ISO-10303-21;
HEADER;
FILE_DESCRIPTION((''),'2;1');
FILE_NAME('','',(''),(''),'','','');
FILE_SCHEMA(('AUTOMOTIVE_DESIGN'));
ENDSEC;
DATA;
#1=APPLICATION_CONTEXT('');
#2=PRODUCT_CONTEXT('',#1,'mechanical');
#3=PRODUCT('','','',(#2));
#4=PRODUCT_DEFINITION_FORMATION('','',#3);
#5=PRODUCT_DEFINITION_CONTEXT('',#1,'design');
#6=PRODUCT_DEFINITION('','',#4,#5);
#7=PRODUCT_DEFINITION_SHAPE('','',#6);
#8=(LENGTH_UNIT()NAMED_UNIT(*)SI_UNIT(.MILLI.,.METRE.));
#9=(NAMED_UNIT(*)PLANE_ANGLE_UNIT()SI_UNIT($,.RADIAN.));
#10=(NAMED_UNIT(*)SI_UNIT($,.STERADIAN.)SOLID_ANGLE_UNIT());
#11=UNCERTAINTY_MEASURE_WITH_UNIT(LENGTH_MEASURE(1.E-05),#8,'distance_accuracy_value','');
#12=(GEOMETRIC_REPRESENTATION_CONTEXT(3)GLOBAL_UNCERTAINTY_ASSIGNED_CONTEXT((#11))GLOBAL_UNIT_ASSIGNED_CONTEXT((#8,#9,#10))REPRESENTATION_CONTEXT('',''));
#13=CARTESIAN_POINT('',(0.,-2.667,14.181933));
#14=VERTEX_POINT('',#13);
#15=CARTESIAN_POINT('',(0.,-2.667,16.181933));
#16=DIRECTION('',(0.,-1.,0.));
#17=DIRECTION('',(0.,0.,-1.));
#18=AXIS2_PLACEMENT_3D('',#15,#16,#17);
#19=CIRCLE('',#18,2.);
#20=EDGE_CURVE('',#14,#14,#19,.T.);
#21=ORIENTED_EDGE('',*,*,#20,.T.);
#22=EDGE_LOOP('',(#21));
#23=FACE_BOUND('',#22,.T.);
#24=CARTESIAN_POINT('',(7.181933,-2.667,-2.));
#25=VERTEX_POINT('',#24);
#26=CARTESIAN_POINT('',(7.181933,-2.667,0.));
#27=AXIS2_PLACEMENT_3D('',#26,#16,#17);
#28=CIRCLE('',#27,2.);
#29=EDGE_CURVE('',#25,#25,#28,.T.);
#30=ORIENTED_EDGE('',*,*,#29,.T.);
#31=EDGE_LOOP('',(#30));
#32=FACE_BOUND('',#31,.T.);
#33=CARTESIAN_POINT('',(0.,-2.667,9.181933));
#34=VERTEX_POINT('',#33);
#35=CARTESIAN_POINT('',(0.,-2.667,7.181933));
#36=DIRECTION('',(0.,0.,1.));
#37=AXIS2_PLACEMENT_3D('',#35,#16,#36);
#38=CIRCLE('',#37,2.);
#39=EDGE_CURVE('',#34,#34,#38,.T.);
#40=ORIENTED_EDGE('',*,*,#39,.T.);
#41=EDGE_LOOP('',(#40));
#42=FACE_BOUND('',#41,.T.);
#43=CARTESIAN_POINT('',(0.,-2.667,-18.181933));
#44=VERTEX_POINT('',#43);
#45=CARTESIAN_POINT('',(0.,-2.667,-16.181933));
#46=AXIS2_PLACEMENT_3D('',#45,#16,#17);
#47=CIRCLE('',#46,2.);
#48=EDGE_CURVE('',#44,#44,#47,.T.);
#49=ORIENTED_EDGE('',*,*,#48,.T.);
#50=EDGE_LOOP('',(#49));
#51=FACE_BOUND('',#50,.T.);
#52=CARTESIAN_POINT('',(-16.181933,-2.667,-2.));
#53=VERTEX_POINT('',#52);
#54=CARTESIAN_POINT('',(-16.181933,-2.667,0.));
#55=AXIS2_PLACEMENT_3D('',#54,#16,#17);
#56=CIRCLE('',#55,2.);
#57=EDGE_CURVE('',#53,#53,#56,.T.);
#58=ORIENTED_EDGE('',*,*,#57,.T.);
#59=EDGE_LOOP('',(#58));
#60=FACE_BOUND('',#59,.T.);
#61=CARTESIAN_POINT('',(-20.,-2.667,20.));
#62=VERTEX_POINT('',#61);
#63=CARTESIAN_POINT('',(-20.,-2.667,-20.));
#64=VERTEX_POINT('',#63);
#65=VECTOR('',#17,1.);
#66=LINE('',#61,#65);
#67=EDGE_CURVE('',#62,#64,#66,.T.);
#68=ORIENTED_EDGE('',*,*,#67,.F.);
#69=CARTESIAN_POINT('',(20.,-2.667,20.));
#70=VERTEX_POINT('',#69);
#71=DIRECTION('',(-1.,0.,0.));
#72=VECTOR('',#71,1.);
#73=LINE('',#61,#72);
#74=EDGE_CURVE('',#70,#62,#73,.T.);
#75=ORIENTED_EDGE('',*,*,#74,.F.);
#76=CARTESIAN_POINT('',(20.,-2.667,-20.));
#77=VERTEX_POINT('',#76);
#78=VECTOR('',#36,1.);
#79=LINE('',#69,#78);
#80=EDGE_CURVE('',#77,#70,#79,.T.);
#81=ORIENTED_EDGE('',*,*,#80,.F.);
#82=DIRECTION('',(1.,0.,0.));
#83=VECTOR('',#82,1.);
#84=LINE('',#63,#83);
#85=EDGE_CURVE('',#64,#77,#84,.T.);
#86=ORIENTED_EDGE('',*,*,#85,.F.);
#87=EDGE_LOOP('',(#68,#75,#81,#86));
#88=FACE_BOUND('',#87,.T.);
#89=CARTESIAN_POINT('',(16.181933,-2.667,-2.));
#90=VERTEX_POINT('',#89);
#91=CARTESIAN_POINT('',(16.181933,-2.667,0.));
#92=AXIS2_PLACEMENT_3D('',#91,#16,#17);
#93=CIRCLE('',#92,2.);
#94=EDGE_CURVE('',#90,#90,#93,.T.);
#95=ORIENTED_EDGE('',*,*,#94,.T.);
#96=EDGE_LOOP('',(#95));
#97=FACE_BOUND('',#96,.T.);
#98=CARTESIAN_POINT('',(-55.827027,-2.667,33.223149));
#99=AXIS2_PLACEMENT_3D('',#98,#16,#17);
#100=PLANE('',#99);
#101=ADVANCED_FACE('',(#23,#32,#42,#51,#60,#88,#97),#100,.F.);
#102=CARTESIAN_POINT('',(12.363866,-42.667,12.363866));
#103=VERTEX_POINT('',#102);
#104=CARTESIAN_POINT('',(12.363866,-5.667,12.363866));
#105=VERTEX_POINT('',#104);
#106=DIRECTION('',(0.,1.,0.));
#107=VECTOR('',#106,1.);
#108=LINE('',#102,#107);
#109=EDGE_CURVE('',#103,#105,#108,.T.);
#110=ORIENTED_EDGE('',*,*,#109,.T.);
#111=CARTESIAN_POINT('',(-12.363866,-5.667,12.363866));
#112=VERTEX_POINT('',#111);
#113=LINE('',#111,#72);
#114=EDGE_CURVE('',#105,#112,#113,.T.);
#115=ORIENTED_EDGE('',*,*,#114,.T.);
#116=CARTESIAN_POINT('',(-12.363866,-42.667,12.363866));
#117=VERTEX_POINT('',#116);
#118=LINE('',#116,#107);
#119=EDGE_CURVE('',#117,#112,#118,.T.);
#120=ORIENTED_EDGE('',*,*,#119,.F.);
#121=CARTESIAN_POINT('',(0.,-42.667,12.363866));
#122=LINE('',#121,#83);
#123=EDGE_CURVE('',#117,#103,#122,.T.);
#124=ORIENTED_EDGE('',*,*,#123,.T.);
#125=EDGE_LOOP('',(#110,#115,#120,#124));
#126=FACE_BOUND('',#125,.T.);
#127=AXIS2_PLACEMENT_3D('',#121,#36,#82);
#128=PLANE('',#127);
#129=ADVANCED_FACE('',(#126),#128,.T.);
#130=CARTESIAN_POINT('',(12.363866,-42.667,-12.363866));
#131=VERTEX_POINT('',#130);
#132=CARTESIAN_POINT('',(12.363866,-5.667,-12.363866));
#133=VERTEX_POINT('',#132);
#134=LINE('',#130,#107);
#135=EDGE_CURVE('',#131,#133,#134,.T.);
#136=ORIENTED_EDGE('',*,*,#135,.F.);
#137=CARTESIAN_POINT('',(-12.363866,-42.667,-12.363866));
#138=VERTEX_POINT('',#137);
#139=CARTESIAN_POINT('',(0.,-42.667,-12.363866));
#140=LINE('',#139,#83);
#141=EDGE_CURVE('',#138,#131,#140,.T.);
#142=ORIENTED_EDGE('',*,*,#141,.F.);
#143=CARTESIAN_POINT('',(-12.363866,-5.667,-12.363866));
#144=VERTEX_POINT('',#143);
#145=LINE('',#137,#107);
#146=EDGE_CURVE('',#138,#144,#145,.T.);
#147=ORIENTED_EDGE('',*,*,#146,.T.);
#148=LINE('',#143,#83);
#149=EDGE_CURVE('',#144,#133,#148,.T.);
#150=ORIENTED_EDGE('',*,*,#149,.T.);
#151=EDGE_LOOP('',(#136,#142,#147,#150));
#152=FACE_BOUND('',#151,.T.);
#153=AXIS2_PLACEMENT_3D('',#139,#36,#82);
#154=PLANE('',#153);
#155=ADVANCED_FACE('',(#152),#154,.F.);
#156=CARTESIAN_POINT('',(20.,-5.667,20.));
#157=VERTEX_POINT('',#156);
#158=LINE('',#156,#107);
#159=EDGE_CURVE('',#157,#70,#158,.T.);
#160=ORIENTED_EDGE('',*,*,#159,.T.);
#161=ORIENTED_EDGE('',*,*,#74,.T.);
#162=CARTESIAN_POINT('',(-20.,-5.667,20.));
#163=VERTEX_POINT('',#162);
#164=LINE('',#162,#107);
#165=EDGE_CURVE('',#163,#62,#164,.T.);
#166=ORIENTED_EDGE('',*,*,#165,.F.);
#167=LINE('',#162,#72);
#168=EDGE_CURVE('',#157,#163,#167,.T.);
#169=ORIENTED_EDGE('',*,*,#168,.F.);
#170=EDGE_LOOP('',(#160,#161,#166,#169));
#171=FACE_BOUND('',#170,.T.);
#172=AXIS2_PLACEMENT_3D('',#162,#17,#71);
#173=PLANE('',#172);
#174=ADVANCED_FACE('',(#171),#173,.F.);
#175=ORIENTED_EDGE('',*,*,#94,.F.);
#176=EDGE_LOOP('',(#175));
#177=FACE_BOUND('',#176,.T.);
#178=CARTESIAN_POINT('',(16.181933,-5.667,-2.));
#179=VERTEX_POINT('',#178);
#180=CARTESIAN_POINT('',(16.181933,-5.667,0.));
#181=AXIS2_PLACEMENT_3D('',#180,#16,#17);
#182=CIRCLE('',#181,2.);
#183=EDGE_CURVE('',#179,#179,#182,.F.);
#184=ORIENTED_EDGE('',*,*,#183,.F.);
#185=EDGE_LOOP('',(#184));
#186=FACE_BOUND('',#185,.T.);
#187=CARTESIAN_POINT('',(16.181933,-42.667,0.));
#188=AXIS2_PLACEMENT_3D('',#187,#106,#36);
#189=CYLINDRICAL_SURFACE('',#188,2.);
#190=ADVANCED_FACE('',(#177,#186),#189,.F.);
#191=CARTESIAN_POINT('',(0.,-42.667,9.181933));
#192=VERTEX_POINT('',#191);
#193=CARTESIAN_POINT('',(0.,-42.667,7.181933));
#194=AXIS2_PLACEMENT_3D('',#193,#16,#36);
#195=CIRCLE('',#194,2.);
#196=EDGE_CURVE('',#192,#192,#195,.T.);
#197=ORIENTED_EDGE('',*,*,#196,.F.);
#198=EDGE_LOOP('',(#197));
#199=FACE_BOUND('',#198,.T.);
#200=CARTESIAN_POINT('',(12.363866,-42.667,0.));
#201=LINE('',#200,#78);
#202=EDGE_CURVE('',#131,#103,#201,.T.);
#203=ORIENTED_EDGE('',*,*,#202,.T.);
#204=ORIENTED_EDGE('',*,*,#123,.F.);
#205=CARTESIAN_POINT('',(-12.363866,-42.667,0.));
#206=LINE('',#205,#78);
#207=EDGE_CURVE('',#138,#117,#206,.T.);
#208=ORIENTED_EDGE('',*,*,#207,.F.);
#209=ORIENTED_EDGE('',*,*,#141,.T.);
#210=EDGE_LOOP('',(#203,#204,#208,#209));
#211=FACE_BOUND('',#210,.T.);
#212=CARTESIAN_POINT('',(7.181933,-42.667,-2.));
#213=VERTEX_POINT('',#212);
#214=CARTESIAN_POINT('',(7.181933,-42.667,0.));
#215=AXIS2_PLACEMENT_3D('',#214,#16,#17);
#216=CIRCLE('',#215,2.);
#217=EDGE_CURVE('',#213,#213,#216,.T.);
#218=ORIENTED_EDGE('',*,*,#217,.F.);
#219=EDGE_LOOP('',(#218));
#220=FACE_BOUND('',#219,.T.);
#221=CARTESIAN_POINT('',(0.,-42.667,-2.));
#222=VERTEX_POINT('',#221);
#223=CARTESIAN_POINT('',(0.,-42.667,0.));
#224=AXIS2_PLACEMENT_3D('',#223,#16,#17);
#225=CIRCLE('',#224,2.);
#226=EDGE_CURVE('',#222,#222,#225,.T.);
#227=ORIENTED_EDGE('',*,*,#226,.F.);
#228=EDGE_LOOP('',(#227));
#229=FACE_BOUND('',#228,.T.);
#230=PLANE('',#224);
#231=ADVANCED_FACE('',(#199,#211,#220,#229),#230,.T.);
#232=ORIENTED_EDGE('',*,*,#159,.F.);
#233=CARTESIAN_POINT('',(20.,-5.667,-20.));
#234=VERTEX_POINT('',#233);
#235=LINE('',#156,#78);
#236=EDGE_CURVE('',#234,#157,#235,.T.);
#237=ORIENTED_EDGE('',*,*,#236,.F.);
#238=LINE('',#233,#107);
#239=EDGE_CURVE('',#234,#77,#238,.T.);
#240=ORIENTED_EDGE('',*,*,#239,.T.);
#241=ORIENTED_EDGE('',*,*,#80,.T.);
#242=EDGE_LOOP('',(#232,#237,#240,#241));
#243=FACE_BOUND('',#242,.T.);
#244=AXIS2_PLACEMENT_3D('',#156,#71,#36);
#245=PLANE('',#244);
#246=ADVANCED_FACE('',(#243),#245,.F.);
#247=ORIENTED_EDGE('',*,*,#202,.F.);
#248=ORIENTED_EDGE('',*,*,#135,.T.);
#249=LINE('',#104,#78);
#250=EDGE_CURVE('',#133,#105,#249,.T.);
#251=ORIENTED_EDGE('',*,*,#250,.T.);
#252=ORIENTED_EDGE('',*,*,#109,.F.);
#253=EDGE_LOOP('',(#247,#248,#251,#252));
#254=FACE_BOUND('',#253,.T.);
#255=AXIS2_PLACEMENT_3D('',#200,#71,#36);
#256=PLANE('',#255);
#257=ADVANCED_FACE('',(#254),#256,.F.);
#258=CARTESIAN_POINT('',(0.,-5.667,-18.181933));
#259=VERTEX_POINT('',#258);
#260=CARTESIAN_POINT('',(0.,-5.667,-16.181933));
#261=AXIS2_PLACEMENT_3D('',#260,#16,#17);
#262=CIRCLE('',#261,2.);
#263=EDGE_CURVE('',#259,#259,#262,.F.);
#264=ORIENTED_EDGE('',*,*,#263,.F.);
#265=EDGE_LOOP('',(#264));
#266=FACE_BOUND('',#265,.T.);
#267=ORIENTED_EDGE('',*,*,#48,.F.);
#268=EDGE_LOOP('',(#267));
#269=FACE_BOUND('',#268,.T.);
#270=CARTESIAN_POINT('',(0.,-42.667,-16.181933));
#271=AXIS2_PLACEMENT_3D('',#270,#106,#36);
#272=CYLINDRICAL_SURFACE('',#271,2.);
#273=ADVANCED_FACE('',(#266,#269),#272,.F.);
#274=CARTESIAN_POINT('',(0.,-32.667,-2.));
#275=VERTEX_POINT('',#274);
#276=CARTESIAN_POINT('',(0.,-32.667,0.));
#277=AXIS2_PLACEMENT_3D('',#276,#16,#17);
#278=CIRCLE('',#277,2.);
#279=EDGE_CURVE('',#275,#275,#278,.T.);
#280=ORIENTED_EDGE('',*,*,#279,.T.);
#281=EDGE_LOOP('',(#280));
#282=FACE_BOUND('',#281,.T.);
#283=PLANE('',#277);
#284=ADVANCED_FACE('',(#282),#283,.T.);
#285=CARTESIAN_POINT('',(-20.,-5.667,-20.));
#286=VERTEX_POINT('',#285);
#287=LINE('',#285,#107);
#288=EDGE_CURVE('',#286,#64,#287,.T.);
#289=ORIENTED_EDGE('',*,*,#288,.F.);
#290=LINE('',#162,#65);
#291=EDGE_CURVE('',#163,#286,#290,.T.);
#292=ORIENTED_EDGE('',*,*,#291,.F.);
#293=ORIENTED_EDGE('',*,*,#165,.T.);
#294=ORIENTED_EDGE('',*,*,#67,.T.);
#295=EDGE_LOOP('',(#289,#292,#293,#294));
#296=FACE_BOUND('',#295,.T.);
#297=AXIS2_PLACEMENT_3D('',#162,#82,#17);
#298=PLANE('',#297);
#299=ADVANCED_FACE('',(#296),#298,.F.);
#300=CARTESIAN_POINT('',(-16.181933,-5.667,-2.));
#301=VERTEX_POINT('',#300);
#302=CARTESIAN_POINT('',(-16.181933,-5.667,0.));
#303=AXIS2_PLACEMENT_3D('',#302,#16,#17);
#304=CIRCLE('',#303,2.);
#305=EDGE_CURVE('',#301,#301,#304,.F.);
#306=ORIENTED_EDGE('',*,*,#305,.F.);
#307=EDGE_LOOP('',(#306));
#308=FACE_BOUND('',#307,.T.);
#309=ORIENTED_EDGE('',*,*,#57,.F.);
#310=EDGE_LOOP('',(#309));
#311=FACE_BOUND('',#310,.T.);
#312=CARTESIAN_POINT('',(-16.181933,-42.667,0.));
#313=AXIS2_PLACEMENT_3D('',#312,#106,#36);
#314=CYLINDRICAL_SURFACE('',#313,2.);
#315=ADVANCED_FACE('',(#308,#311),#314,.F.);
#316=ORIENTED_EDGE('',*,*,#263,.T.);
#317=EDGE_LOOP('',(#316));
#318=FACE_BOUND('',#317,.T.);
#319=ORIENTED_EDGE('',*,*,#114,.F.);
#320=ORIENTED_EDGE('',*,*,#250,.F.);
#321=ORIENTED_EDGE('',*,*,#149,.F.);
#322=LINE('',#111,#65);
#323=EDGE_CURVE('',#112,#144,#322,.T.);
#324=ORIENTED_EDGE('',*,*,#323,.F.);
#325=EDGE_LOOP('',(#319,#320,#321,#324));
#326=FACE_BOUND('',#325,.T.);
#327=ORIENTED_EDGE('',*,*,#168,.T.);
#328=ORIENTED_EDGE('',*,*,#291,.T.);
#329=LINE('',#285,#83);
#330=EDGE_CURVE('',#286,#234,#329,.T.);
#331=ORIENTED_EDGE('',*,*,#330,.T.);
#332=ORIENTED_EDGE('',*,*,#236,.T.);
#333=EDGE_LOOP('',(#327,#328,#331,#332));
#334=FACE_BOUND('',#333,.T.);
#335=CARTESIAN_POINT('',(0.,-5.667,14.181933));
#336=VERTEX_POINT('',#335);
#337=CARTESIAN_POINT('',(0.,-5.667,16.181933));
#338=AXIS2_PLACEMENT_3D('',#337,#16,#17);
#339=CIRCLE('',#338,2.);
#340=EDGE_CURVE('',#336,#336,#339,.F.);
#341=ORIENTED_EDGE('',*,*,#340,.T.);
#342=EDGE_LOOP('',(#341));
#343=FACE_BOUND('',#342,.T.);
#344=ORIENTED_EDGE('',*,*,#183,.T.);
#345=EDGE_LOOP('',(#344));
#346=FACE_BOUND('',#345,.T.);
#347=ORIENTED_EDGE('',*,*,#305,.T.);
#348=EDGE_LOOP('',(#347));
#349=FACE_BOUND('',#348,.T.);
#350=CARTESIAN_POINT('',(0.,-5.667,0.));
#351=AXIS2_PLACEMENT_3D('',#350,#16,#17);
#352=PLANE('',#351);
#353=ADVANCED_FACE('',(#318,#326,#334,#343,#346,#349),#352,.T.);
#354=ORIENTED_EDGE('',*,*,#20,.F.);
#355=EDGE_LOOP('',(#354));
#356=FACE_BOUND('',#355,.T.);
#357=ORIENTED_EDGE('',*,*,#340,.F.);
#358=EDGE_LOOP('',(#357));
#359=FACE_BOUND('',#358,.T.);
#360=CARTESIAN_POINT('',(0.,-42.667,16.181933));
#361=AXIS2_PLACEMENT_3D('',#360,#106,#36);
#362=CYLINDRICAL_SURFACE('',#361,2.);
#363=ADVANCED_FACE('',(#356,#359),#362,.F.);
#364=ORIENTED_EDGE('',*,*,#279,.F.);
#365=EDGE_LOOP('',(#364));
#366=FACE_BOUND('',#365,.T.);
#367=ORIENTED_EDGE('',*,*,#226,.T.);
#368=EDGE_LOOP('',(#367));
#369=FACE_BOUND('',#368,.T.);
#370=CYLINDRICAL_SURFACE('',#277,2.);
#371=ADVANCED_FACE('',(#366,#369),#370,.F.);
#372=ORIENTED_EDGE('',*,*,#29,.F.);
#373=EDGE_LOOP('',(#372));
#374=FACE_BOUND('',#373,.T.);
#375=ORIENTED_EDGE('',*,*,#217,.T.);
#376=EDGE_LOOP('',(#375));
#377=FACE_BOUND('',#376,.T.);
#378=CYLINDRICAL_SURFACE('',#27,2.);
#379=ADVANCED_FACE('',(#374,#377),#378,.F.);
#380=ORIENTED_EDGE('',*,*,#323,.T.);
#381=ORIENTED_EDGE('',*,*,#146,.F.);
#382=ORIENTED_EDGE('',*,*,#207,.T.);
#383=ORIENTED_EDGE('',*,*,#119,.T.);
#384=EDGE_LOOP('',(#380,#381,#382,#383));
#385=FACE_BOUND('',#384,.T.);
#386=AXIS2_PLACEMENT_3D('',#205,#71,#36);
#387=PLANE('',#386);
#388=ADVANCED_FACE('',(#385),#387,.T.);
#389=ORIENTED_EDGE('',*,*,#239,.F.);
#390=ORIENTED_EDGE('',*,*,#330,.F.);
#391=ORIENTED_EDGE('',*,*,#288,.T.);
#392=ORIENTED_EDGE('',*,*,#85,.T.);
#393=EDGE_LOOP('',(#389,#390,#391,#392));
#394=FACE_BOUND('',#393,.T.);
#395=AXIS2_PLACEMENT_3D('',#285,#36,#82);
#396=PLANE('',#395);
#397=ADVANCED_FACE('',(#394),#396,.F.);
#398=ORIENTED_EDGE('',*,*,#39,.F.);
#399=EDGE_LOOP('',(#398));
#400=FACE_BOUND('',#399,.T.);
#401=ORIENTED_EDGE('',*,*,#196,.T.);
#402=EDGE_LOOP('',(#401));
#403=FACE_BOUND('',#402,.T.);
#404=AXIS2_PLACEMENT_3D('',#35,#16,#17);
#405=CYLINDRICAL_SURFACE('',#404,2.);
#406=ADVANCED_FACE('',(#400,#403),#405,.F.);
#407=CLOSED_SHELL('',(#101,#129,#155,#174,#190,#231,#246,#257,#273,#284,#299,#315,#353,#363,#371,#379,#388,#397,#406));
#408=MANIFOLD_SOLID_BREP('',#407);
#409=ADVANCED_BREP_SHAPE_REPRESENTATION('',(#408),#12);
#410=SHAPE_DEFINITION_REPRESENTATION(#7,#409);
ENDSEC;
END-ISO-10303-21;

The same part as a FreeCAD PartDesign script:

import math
import FreeCAD as App
import Part
import Sketcher
from FreeCAD import Vector
Q = App.Units.Quantity


def edges_at(feature, points):
    """Names of the edges that pass closest to the given points."""
    edges = feature.Shape.Edges
    near = lambda p: min(range(len(edges)), key=lambda i: edges[i].distToShape(Part.Vertex(*p))[0])
    return sorted({f"Edge{near(p) + 1}" for p in points})

doc = App.newDocument("Part")
body = doc.addObject("PartDesign::Body", "Body")

# Sketch on XZ plane
sketch1 = body.newObject("Sketcher::SketchObject", "Sketch")
sketch1.AttachmentSupport = (doc.getObject("XZ_Plane"), [""])
sketch1.MapMode = "FlatFace"
sketch1.AttachmentOffset = App.Placement(Vector(0, 0, 0.105 * 25.4), App.Rotation())
sketch1.addGeometry([
    Part.LineSegment(Vector(-96.9645, 58.801, 0), Vector(-96.9645, -58.801, 0)),
    Part.LineSegment(Vector(-96.9645, -58.801, 0), Vector(96.9645, -58.801, 0)),
    Part.LineSegment(Vector(96.9645, -58.801, 0), Vector(96.9645, 58.801, 0)),
    Part.LineSegment(Vector(96.9645, 58.801, 0), Vector(-96.9645, 58.801, 0)),
], False)
sketch1.addConstraint([
    Sketcher.Constraint("Coincident", 0, 2, 1, 1),
    Sketcher.Constraint("Coincident", 1, 2, 2, 1),
    Sketcher.Constraint("Coincident", 2, 2, 3, 1),
    Sketcher.Constraint("Coincident", 3, 2, 0, 1),
    Sketcher.Constraint("Vertical", 0),
    Sketcher.Constraint("Horizontal", 1),
    Sketcher.Constraint("Vertical", 2),
    Sketcher.Constraint("Horizontal", 3),
    Sketcher.Constraint("Symmetric", 0, 2, 2, 2, -1, 1),
    Sketcher.Constraint("DistanceY", 0, 2, 0, 1, Q("4.63 in")),
    Sketcher.Constraint("DistanceX", 1, 1, 1, 2, Q("7.635 in")),
])
pad1 = body.newObject("PartDesign::Pad", "Pad")
pad1.Profile = sketch1
pad1.Length = Q("0.105 in")
pad1.Reversed = True

# Sketch on XZ plane
sketch2 = body.newObject("Sketcher::SketchObject", "Sketch001")
sketch2.AttachmentSupport = (doc.getObject("XZ_Plane"), [""])
sketch2.MapMode = "FlatFace"
sketch2.AttachmentOffset = App.Placement(Vector(0, 0, 0.105 * 25.4), App.Rotation())
sketch2.addGeometry([
    Part.LineSegment(Vector(-74.4728, 55.3085, 0), Vector(-93.472, 36.2712, 0)),  # 0
    Part.LineSegment(Vector(-93.472, 36.2712, 0), Vector(-93.472, -36.2712, 0)),  # 1
    Part.LineSegment(Vector(-93.472, -36.2712, 0), Vector(-74.4728, -55.3085, 0)),  # 2
    Part.LineSegment(Vector(-74.4728, -55.3085, 0), Vector(74.4728, -55.3085, 0)),  # 3
    Part.LineSegment(Vector(74.4728, -55.3085, 0), Vector(93.472, -36.2712, 0)),  # 4
    Part.LineSegment(Vector(93.472, -36.2712, 0), Vector(93.472, 36.2712, 0)),  # 5
    Part.LineSegment(Vector(93.472, 36.2712, 0), Vector(74.4728, 55.3085, 0)),  # 6
    Part.LineSegment(Vector(74.4728, 55.3085, 0), Vector(-74.4728, 55.3085, 0)),  # 7
], False)
sketch2.addConstraint([
    Sketcher.Constraint("Coincident", 0, 2, 1, 1),
    Sketcher.Constraint("Coincident", 1, 2, 2, 1),
    Sketcher.Constraint("Coincident", 2, 2, 3, 1),
    Sketcher.Constraint("Coincident", 3, 2, 4, 1),
    Sketcher.Constraint("Coincident", 4, 2, 5, 1),
    Sketcher.Constraint("Coincident", 5, 2, 6, 1),
    Sketcher.Constraint("Coincident", 6, 2, 7, 1),
    Sketcher.Constraint("Coincident", 7, 2, 0, 1),
    Sketcher.Constraint("Vertical", 1),
    Sketcher.Constraint("Horizontal", 3),
    Sketcher.Constraint("Vertical", 5),
    Sketcher.Constraint("Horizontal", 7),
    Sketcher.Constraint("Symmetric", 0, 2, 4, 2, -1, 1),
    Sketcher.Constraint("Symmetric", 2, 2, 6, 2, -1, 1),
    Sketcher.Constraint("Parallel", 0, 4),
    Sketcher.Constraint("Parallel", 2, 6),
    Sketcher.Constraint("Horizontal", 1, 2, 4, 2),
    Sketcher.Constraint("Vertical", 3, 2, 6, 2),
    Sketcher.Constraint("DistanceX", 3, 1, 3, 2, Q("5.864 in")),
    Sketcher.Constraint("DistanceY", 1, 2, 1, 1, Q("2.856 in")),
    Sketcher.Constraint("DistanceX", 0, 2, -1, 1, Q("3.68 in")),
    Sketcher.Constraint("DistanceY", 3, 2, 6, 2, Q("4.355 in")),
])
pocket1 = body.newObject("PartDesign::Pocket", "Pocket")
pocket1.Profile = sketch2
pocket1.Length = Q("0.01 in")

# Sketch on XZ plane
sketch3 = body.newObject("Sketcher::SketchObject", "Sketch002")
sketch3.AttachmentSupport = (doc.getObject("XZ_Plane"), [""])
sketch3.MapMode = "FlatFace"
sketch3.AttachmentOffset = App.Placement(Vector(0, 0, 0.095 * 25.4), App.Rotation())
sketch3.addGeometry([
    Part.LineSegment(Vector(92.6846, -35.94551, 0), Vector(92.6846, 35.94551, 0)),  # 0
    Part.LineSegment(Vector(92.6846, 35.94551, 0), Vector(74.146186, 54.5211, 0)),  # 1
    Part.LineSegment(Vector(74.146186, 54.5211, 0), Vector(-74.146186, 54.5211, 0)),  # 2
    Part.LineSegment(Vector(-74.146186, 54.5211, 0), Vector(-92.6846, 35.94551, 0)),  # 3
    Part.LineSegment(Vector(-92.6846, 35.94551, 0), Vector(-92.6846, -35.94551, 0)),  # 4
    Part.LineSegment(Vector(-92.6846, -35.94551, 0), Vector(-74.146186, -54.5211, 0)),  # 5
    Part.LineSegment(Vector(-74.146186, -54.5211, 0), Vector(74.146186, -54.5211, 0)),  # 6
    Part.LineSegment(Vector(74.146186, -54.5211, 0), Vector(92.6846, -35.94551, 0)),  # 7
], False)
sketch3.addConstraint([
    Sketcher.Constraint("Coincident", 0, 2, 1, 1),
    Sketcher.Constraint("Coincident", 1, 2, 2, 1),
    Sketcher.Constraint("Coincident", 2, 2, 3, 1),
    Sketcher.Constraint("Coincident", 3, 2, 4, 1),
    Sketcher.Constraint("Coincident", 4, 2, 5, 1),
    Sketcher.Constraint("Coincident", 5, 2, 6, 1),
    Sketcher.Constraint("Coincident", 6, 2, 7, 1),
    Sketcher.Constraint("Coincident", 7, 2, 0, 1),
    Sketcher.Constraint("Vertical", 0),
    Sketcher.Constraint("Horizontal", 2),
    Sketcher.Constraint("Vertical", 4),
    Sketcher.Constraint("Horizontal", 6),
    Sketcher.Constraint("Symmetric", 0, 2, 4, 2, -1, 1),
    Sketcher.Constraint("Symmetric", 1, 2, 5, 2, -1, 1),
    Sketcher.Constraint("Parallel", 3, 7),
    Sketcher.Constraint("Horizontal", 0, 2, 3, 2),
    Sketcher.Constraint("Horizontal", 4, 2, 7, 2),
    Sketcher.Constraint("Vertical", 2, 2, 5, 2),
    Sketcher.Constraint("DistanceX", -1, 1, 0, 2, Q("3.649 in")),
    Sketcher.Constraint("DistanceY", 5, 2, 2, 2, Q("4.293 in")),
    Sketcher.Constraint("DistanceY", 0, 1, 0, 2, Q("71.89102 mm")),
    Sketcher.Constraint("DistanceX", 2, 2, 2, 1, Q("148.292372 mm")),
])
pad2 = body.newObject("PartDesign::Pad", "Pad001")
pad2.Profile = sketch3
pad2.Length = Q("0.01 in")

# Sketch on XZ plane
sketch4 = body.newObject("Sketcher::SketchObject", "Sketch003")
sketch4.AttachmentSupport = (doc.getObject("XZ_Plane"), [""])
sketch4.MapMode = "FlatFace"
sketch4.addGeometry([
    Part.LineSegment(Vector(-92.6211, 49.3395, 0), Vector(-92.6211, -49.3395, 0)),
    Part.ArcOfCircle(Part.Circle(Vector(-93.4212, -49.3395, 0), Vector(0, 0, 1), 0.8001), math.radians(180), math.radians(360)),
    Part.LineSegment(Vector(-94.2213, -49.3395, 0), Vector(-94.2213, 49.3395, 0)),
    Part.ArcOfCircle(Part.Circle(Vector(-93.4212, 49.3395, 0), Vector(0, 0, 1), 0.8001), math.radians(0), math.radians(180)),
], False)
sketch4.addConstraint([
    Sketcher.Constraint("Tangent", 0, 2, 1, 2),
    Sketcher.Constraint("Tangent", 1, 1, 2, 1),
    Sketcher.Constraint("Tangent", 2, 2, 3, 2),
    Sketcher.Constraint("Tangent", 3, 1, 0, 1),
    Sketcher.Constraint("Vertical", 0),
    Sketcher.Constraint("Vertical", 2),
    Sketcher.Constraint("Radius", 1, Q("0.0315 in")),
    Sketcher.Constraint("DistanceY", 0, 2, 0, 1, Q("3.885 in")),
    Sketcher.Constraint("DistanceX", 1, 3, -1, 1, Q("3.678 in")),
    Sketcher.Constraint("DistanceY", 1, 3, -1, 1, Q("1.9425 in")),
])
pad3 = body.newObject("PartDesign::Pad", "Pad002")
pad3.Profile = sketch4
pad3.Length = Q("0.063 in")
pad3.Reversed = True

# Sketch on XZ plane
sketch5 = body.newObject("Sketcher::SketchObject", "Sketch004")
sketch5.AttachmentSupport = (doc.getObject("XZ_Plane"), [""])
sketch5.MapMode = "FlatFace"
sketch5.addGeometry([
    Part.LineSegment(Vector(94.2213, 49.3395, 0), Vector(94.2213, -49.3395, 0)),
    Part.ArcOfCircle(Part.Circle(Vector(93.4212, -49.3395, 0), Vector(0, 0, 1), 0.8001), math.radians(180), math.radians(360)),
    Part.LineSegment(Vector(92.6211, -49.3395, 0), Vector(92.6211, 49.3395, 0)),
    Part.ArcOfCircle(Part.Circle(Vector(93.4212, 49.3395, 0), Vector(0, 0, 1), 0.8001), math.radians(0), math.radians(180)),
], False)
sketch5.addConstraint([
    Sketcher.Constraint("Tangent", 0, 2, 1, 2),
    Sketcher.Constraint("Tangent", 1, 1, 2, 1),
    Sketcher.Constraint("Tangent", 2, 2, 3, 2),
    Sketcher.Constraint("Tangent", 3, 1, 0, 1),
    Sketcher.Constraint("Vertical", 0),
    Sketcher.Constraint("Vertical", 2),
    Sketcher.Constraint("Radius", 1, Q("0.0315 in")),
    Sketcher.Constraint("DistanceY", 0, 2, 0, 1, Q("3.885 in")),
    Sketcher.Constraint("DistanceX", -1, 1, 1, 3, Q("3.678 in")),
    Sketcher.Constraint("DistanceY", 1, 3, -1, 1, Q("1.9425 in")),
])
pad4 = body.newObject("PartDesign::Pad", "Pad003")
pad4.Profile = sketch5
pad4.Length = Q("0.063 in")
pad4.Reversed = True

# Sketch on XZ plane
sketch6 = body.newObject("Sketcher::SketchObject", "Sketch005")
sketch6.AttachmentSupport = (doc.getObject("XZ_Plane"), [""])
sketch6.MapMode = "FlatFace"
sketch6.addGeometry([
    Part.LineSegment(Vector(-87.5919, -54.4576, 0), Vector(-10.4013, -54.4576, 0)),
    Part.ArcOfCircle(Part.Circle(Vector(-10.4013, -55.2577, 0), Vector(0, 0, 1), 0.8001), math.radians(-90), math.radians(90)),
    Part.LineSegment(Vector(-10.4013, -56.0578, 0), Vector(-87.5919, -56.0578, 0)),
    Part.ArcOfCircle(Part.Circle(Vector(-87.5919, -55.2577, 0), Vector(0, 0, 1), 0.8001), math.radians(90), math.radians(270)),
], False)
sketch6.addConstraint([
    Sketcher.Constraint("Tangent", 0, 2, 1, 2),
    Sketcher.Constraint("Tangent", 1, 1, 2, 1),
    Sketcher.Constraint("Tangent", 2, 2, 3, 2),
    Sketcher.Constraint("Tangent", 3, 1, 0, 1),
    Sketcher.Constraint("Horizontal", 0),
    Sketcher.Constraint("Horizontal", 2),
    Sketcher.Constraint("Radius", 1, Q("0.0315 in")),
    Sketcher.Constraint("DistanceX", 0, 1, 0, 2, Q("3.039 in")),
    Sketcher.Constraint("DistanceY", 0, 2, -1, 1, Q("2.144 in")),
    Sketcher.Constraint("DistanceX", 1, 3, -1, 1, Q("0.4095 in")),
])
pad5 = body.newObject("PartDesign::Pad", "Pad004")
pad5.Profile = sketch6
pad5.Length = Q("0.063 in")
pad5.Reversed = True

# Sketch on XZ plane
sketch7 = body.newObject("Sketcher::SketchObject", "Sketch006")
sketch7.AttachmentSupport = (doc.getObject("XZ_Plane"), [""])
sketch7.MapMode = "FlatFace"
sketch7.addGeometry([
    Part.LineSegment(Vector(-87.5919, 56.0578, 0), Vector(87.5919, 56.0578, 0)),
    Part.ArcOfCircle(Part.Circle(Vector(87.5919, 55.2577, 0), Vector(0, 0, 1), 0.8001), math.radians(-90), math.radians(90)),
    Part.LineSegment(Vector(87.5919, 54.4576, 0), Vector(-87.5919, 54.4576, 0)),
    Part.ArcOfCircle(Part.Circle(Vector(-87.5919, 55.2577, 0), Vector(0, 0, 1), 0.8001), math.radians(90), math.radians(270)),
], False)
sketch7.addConstraint([
    Sketcher.Constraint("Tangent", 0, 2, 1, 2),
    Sketcher.Constraint("Tangent", 1, 1, 2, 1),
    Sketcher.Constraint("Tangent", 2, 2, 3, 2),
    Sketcher.Constraint("Tangent", 3, 1, 0, 1),
    Sketcher.Constraint("Horizontal", 0),
    Sketcher.Constraint("Horizontal", 2),
    Sketcher.Constraint("Radius", 1, Q("0.0315 in")),
    Sketcher.Constraint("DistanceX", 0, 1, 0, 2, Q("6.897 in")),
    Sketcher.Constraint("DistanceY", -1, 1, 0, 2, Q("2.207 in")),
    Sketcher.Constraint("DistanceX", -1, 1, 1, 3, Q("3.4485 in")),
])
pad6 = body.newObject("PartDesign::Pad", "Pad005")
pad6.Profile = sketch7
pad6.Length = Q("0.063 in")
pad6.Reversed = True

# Sketch on XZ plane
sketch8 = body.newObject("Sketcher::SketchObject", "Sketch007")
sketch8.AttachmentSupport = (doc.getObject("XZ_Plane"), [""])
sketch8.MapMode = "FlatFace"
sketch8.addGeometry([
    Part.LineSegment(Vector(10.4013, -54.4576, 0), Vector(87.5919, -54.4576, 0)),
    Part.ArcOfCircle(Part.Circle(Vector(87.5919, -55.2577, 0), Vector(0, 0, 1), 0.8001), math.radians(-90), math.radians(90)),
    Part.LineSegment(Vector(87.5919, -56.0578, 0), Vector(10.4013, -56.0578, 0)),
    Part.ArcOfCircle(Part.Circle(Vector(10.4013, -55.2577, 0), Vector(0, 0, 1), 0.8001), math.radians(90), math.radians(270)),
], False)
sketch8.addConstraint([
    Sketcher.Constraint("Tangent", 0, 2, 1, 2),
    Sketcher.Constraint("Tangent", 1, 1, 2, 1),
    Sketcher.Constraint("Tangent", 2, 2, 3, 2),
    Sketcher.Constraint("Tangent", 3, 1, 0, 1),
    Sketcher.Constraint("Horizontal", 0),
    Sketcher.Constraint("Horizontal", 2),
    Sketcher.Constraint("Radius", 1, Q("0.0315 in")),
    Sketcher.Constraint("DistanceX", 0, 1, 0, 2, Q("3.039 in")),
    Sketcher.Constraint("DistanceY", 0, 2, -1, 1, Q("2.144 in")),
    Sketcher.Constraint("DistanceX", -1, 1, 1, 3, Q("3.4485 in")),
])
pad7 = body.newObject("PartDesign::Pad", "Pad006")
pad7.Profile = sketch8
pad7.Length = Q("0.063 in")
pad7.Reversed = True

# Sketch on XY plane
sketch9 = body.newObject("Sketcher::SketchObject", "Sketch008")
sketch9.AttachmentSupport = (doc.getObject("XY_Plane"), [""])
sketch9.MapMode = "FlatFace"
sketch9.AttachmentOffset = App.Placement(Vector(0, 0, -1.97 * 25.4), App.Rotation())
sketch9.addGeometry([
    Part.LineSegment(Vector(-88.138, 3.175, 0), Vector(-88.138, 0, 0)),
    Part.LineSegment(Vector(-88.138, 0, 0), Vector(-84.455, 0, 0)),
    Part.LineSegment(Vector(-84.455, 0, 0), Vector(-84.455, 3.175, 0)),
    Part.LineSegment(Vector(-84.455, 3.175, 0), Vector(-88.138, 3.175, 0)),
], False)
sketch9.addGeometry(Part.LineSegment(Vector(-88.138, 3.175, 0), Vector(-88.138, 0, 0)), True)  # axis
sketch9.addConstraint([
    Sketcher.Constraint("Coincident", 0, 2, 1, 1),
    Sketcher.Constraint("Coincident", 1, 2, 2, 1),
    Sketcher.Constraint("Coincident", 2, 2, 3, 1),
    Sketcher.Constraint("Coincident", 3, 2, 0, 1),
    Sketcher.Constraint("Vertical", 0),
    Sketcher.Constraint("Horizontal", 1),
    Sketcher.Constraint("Vertical", 2),
    Sketcher.Constraint("Horizontal", 3),
    Sketcher.Constraint("Vertical", 4),
    Sketcher.Constraint("Coincident", 4, 1, 3, 2),
    Sketcher.Constraint("PointOnObject", 0, 2, -1),
    Sketcher.Constraint("PointOnObject", 4, 2, -1),
    Sketcher.Constraint("DistanceX", 1, 1, 1, 2, Q("0.145 in")),
    Sketcher.Constraint("DistanceY", 0, 2, 0, 1, Q("0.125 in")),
    Sketcher.Constraint("DistanceX", 0, 2, -1, 1, Q("3.47 in")),
])
revolution = body.newObject("PartDesign::Revolution", "Revolution")
revolution.Profile = sketch9
revolution.ReferenceAxis = (sketch9, ["Axis0"])
revolution.Angle = 360

# Sketch on XY plane
sketch10 = body.newObject("Sketcher::SketchObject", "Sketch009")
sketch10.AttachmentSupport = (doc.getObject("XY_Plane"), [""])
sketch10.MapMode = "FlatFace"
sketch10.AttachmentOffset = App.Placement(Vector(0, 0, 1.97 * 25.4), App.Rotation())
sketch10.addGeometry([
    Part.LineSegment(Vector(88.138, 3.175, 0), Vector(88.138, 0, 0)),
    Part.LineSegment(Vector(88.138, 0, 0), Vector(91.821, 0, 0)),
    Part.LineSegment(Vector(91.821, 0, 0), Vector(91.821, 3.175, 0)),
    Part.LineSegment(Vector(91.821, 3.175, 0), Vector(88.138, 3.175, 0)),
], False)
sketch10.addGeometry(Part.LineSegment(Vector(88.138, 3.175, 0), Vector(88.138, 0, 0)), True)  # axis
sketch10.addConstraint([
    Sketcher.Constraint("Coincident", 0, 2, 1, 1),
    Sketcher.Constraint("Coincident", 1, 2, 2, 1),
    Sketcher.Constraint("Coincident", 2, 2, 3, 1),
    Sketcher.Constraint("Coincident", 3, 2, 0, 1),
    Sketcher.Constraint("Vertical", 0),
    Sketcher.Constraint("Horizontal", 1),
    Sketcher.Constraint("Vertical", 2),
    Sketcher.Constraint("Horizontal", 3),
    Sketcher.Constraint("Vertical", 4),
    Sketcher.Constraint("Coincident", 4, 1, 3, 2),
    Sketcher.Constraint("PointOnObject", 0, 2, -1),
    Sketcher.Constraint("PointOnObject", 4, 2, -1),
    Sketcher.Constraint("DistanceX", 1, 1, 1, 2, Q("0.145 in")),
    Sketcher.Constraint("DistanceY", 0, 2, 0, 1, Q("0.125 in")),
    Sketcher.Constraint("DistanceX", -1, 1, 0, 2, Q("3.47 in")),
])
revolution2 = body.newObject("PartDesign::Revolution", "Revolution001")
revolution2.Profile = sketch10
revolution2.ReferenceAxis = (sketch10, ["Axis0"])
revolution2.Angle = 360

# Sketch on XY plane
sketch11 = body.newObject("Sketcher::SketchObject", "Sketch010")
sketch11.AttachmentSupport = (doc.getObject("XY_Plane"), [""])
sketch11.MapMode = "FlatFace"
sketch11.AttachmentOffset = App.Placement(Vector(0, 0, 1.97 * 25.4), App.Rotation())
sketch11.addGeometry([
    Part.LineSegment(Vector(-88.138, 3.175, 0), Vector(-88.138, 0, 0)),
    Part.LineSegment(Vector(-88.138, 0, 0), Vector(-84.455, 0, 0)),
    Part.LineSegment(Vector(-84.455, 0, 0), Vector(-84.455, 3.175, 0)),
    Part.LineSegment(Vector(-84.455, 3.175, 0), Vector(-88.138, 3.175, 0)),
], False)
sketch11.addGeometry(Part.LineSegment(Vector(-88.138, 3.175, 0), Vector(-88.138, 0, 0)), True)  # axis
sketch11.addConstraint([
    Sketcher.Constraint("Coincident", 0, 2, 1, 1),
    Sketcher.Constraint("Coincident", 1, 2, 2, 1),
    Sketcher.Constraint("Coincident", 2, 2, 3, 1),
    Sketcher.Constraint("Coincident", 3, 2, 0, 1),
    Sketcher.Constraint("Vertical", 0),
    Sketcher.Constraint("Horizontal", 1),
    Sketcher.Constraint("Vertical", 2),
    Sketcher.Constraint("Horizontal", 3),
    Sketcher.Constraint("Vertical", 4),
    Sketcher.Constraint("Coincident", 4, 1, 3, 2),
    Sketcher.Constraint("PointOnObject", 0, 2, -1),
    Sketcher.Constraint("PointOnObject", 4, 2, -1),
    Sketcher.Constraint("DistanceX", 1, 1, 1, 2, Q("0.145 in")),
    Sketcher.Constraint("DistanceY", 0, 2, 0, 1, Q("0.125 in")),
    Sketcher.Constraint("DistanceX", 0, 2, -1, 1, Q("3.47 in")),
])
revolution3 = body.newObject("PartDesign::Revolution", "Revolution002")
revolution3.Profile = sketch11
revolution3.ReferenceAxis = (sketch11, ["Axis0"])
revolution3.Angle = 360

# Sketch on XY plane
sketch12 = body.newObject("Sketcher::SketchObject", "Sketch011")
sketch12.AttachmentSupport = (doc.getObject("XY_Plane"), [""])
sketch12.MapMode = "FlatFace"
sketch12.AttachmentOffset = App.Placement(Vector(0, 0, -1.97 * 25.4), App.Rotation())
sketch12.addGeometry([
    Part.LineSegment(Vector(88.138, 3.175, 0), Vector(88.138, 0, 0)),
    Part.LineSegment(Vector(88.138, 0, 0), Vector(91.821, 0, 0)),
    Part.LineSegment(Vector(91.821, 0, 0), Vector(91.821, 3.175, 0)),
    Part.LineSegment(Vector(91.821, 3.175, 0), Vector(88.138, 3.175, 0)),
], False)
sketch12.addGeometry(Part.LineSegment(Vector(88.138, 3.175, 0), Vector(88.138, 0, 0)), True)  # axis
sketch12.addConstraint([
    Sketcher.Constraint("Coincident", 0, 2, 1, 1),
    Sketcher.Constraint("Coincident", 1, 2, 2, 1),
    Sketcher.Constraint("Coincident", 2, 2, 3, 1),
    Sketcher.Constraint("Coincident", 3, 2, 0, 1),
    Sketcher.Constraint("Vertical", 0),
    Sketcher.Constraint("Horizontal", 1),
    Sketcher.Constraint("Vertical", 2),
    Sketcher.Constraint("Horizontal", 3),
    Sketcher.Constraint("Vertical", 4),
    Sketcher.Constraint("Coincident", 4, 1, 3, 2),
    Sketcher.Constraint("PointOnObject", 0, 2, -1),
    Sketcher.Constraint("PointOnObject", 4, 2, -1),
    Sketcher.Constraint("DistanceX", 1, 1, 1, 2, Q("0.145 in")),
    Sketcher.Constraint("DistanceY", 0, 2, 0, 1, Q("0.125 in")),
    Sketcher.Constraint("DistanceX", -1, 1, 0, 2, Q("3.47 in")),
])
revolution4 = body.newObject("PartDesign::Revolution", "Revolution003")
revolution4.Profile = sketch12
revolution4.ReferenceAxis = (sketch12, ["Axis0"])
revolution4.Angle = 360

# Sketch on YZ plane
sketch13 = body.newObject("Sketcher::SketchObject", "Sketch012")
sketch13.AttachmentSupport = (doc.getObject("YZ_Plane"), [""])
sketch13.MapMode = "FlatFace"
sketch13.AttachmentOffset = App.Placement(Vector(0, 0, 3.47 * 25.4), App.Rotation())
sketch13.addGeometry([
    Part.LineSegment(Vector(3.175, -50.038, 0), Vector(-2.667, -50.038, 0)),  # 0
    Part.LineSegment(Vector(-2.667, -50.038, 0), Vector(-2.667, -53.086, 0)),  # 1
    Part.LineSegment(Vector(-2.667, -53.086, 0), Vector(-1.128284, -53.086, 0)),  # 2
    Part.LineSegment(Vector(-1.128284, -53.086, 0), Vector(0.508, -51.6636, 0)),  # 3
    Part.LineSegment(Vector(0.508, -51.6636, 0), Vector(3.175, -51.6636, 0)),  # 4
    Part.LineSegment(Vector(3.175, -51.6636, 0), Vector(3.175, -50.038, 0)),  # 5
], False)
sketch13.addGeometry(Part.LineSegment(Vector(-2.667, -50.038, 0), Vector(3.175, -50.038, 0)), True)  # axis
sketch13.addConstraint([
    Sketcher.Constraint("Coincident", 0, 2, 1, 1),
    Sketcher.Constraint("Coincident", 1, 2, 2, 1),
    Sketcher.Constraint("Coincident", 2, 2, 3, 1),
    Sketcher.Constraint("Coincident", 3, 2, 4, 1),
    Sketcher.Constraint("Coincident", 4, 2, 5, 1),
    Sketcher.Constraint("Coincident", 5, 2, 0, 1),
    Sketcher.Constraint("Horizontal", 0),
    Sketcher.Constraint("Vertical", 1),
    Sketcher.Constraint("Horizontal", 2),
    Sketcher.Constraint("Horizontal", 4),
    Sketcher.Constraint("Vertical", 5),
    Sketcher.Constraint("Horizontal", 6),
    Sketcher.Constraint("Coincident", 6, 1, 0, 2),
    Sketcher.Constraint("Vertical", 4, 2, 6, 2),
    Sketcher.Constraint("Angle", 3, Q("41 deg")),
    Sketcher.Constraint("DistanceX", 0, 2, 0, 1, Q("0.23 in")),
    Sketcher.Constraint("DistanceY", 1, 2, 1, 1, Q("0.12 in")),
    Sketcher.Constraint("DistanceX", 4, 1, 4, 2, Q("0.105 in")),
    Sketcher.Constraint("DistanceY", 5, 1, 5, 2, Q("0.064 in")),
    Sketcher.Constraint("DistanceY", 0, 2, -1, 1, Q("1.97 in")),
    Sketcher.Constraint("DistanceX", -1, 1, 3, 2, Q("0.02 in")),
])
groove = body.newObject("PartDesign::Groove", "Groove")
groove.Profile = sketch13
groove.ReferenceAxis = (sketch13, ["Axis0"])
groove.Angle = 360
doc.recompute()

datumline = body.newObject("PartDesign::Line", "DatumLine")
datumline.Placement = App.Placement(Vector(0, 0, 0), App.Rotation(Vector(0, 0, 1), Vector(-0.869627756, 0, 0.493707977)))
linearpattern = body.newObject("PartDesign::LinearPattern", "LinearPattern")
linearpattern.Originals = [groove]
linearpattern.Direction = (datumline, [""])
linearpattern.Mode = "offset"
linearpattern.Offset = 202.702822
linearpattern.Occurrences = 2
body.Tip = linearpattern
doc.recompute()

linearpattern2 = body.newObject("PartDesign::LinearPattern", "LinearPattern001")
linearpattern2.Originals = [groove]
linearpattern2.Direction = (doc.getObject("X_Axis"), [""])
linearpattern2.Mode = "offset"
linearpattern2.Offset = Q("6.94 in")
linearpattern2.Occurrences = 2
linearpattern2.Reversed = True
body.Tip = linearpattern2
doc.recompute()

linearpattern3 = body.newObject("PartDesign::LinearPattern", "LinearPattern002")
linearpattern3.Originals = [groove]
linearpattern3.Direction = (doc.getObject("Z_Axis"), [""])
linearpattern3.Mode = "offset"
linearpattern3.Offset = Q("3.94 in")
linearpattern3.Occurrences = 2
body.Tip = linearpattern3
doc.recompute()

fillet = body.newObject("PartDesign::Fillet", "Fillet")
fillet.Base = (linearpattern3, edges_at(linearpattern3, [
    (-96.965, -1.333, 58.801),
    (96.965, -1.333, 58.801),
    (96.965, -1.333, -58.801),
    (-96.965, -1.333, -58.801),
]))
fillet.Radius = Q("0.203 in")
doc.recompute()

fillet2 = body.newObject("PartDesign::Fillet", "Fillet001")
fillet2.Base = (fillet, edges_at(fillet, [
    (0, -2.667, 58.801),
    (-96.965, -2.667, 0),
    (0, -2.667, -58.801),
    (96.965, -2.667, 0),
    (95.454, -2.667, -57.291),
    (95.454, -2.667, 57.291),
    (-95.454, -2.667, -57.291),
    (-95.454, -2.667, 57.291),
]))
fillet2.Radius = Q("0.062 in")
doc.recompute()

fillet3 = body.newObject("PartDesign::Fillet", "Fillet002")
fillet3.Base = (fillet2, edges_at(fillet2, [
    (92.685, -2.54, 35.946),
    (74.146, -2.54, 54.521),
    (-74.146, -2.54, 54.521),
    (-92.685, -2.54, 35.946),
    (-92.685, -2.54, -35.946),
    (-74.146, -2.54, -54.521),
    (74.146, -2.54, -54.521),
    (92.685, -2.54, -35.946),
]))
fillet3.Radius = Q("0.156 in")
doc.recompute()

fillet4 = body.newObject("PartDesign::Fillet", "Fillet003")
fillet4.Base = (fillet3, edges_at(fillet3, [
    (-74.473, -2.54, 55.309),
    (74.473, -2.54, 55.309),
    (93.472, -2.54, 36.271),
    (93.472, -2.54, -36.271),
    (74.473, -2.54, -55.309),
    (-74.473, -2.54, -55.309),
    (-93.472, -2.54, -36.271),
    (-93.472, -2.54, 36.271),
]))
fillet4.Radius = Q("0.187 in")

# Sketch on XZ plane
sketch14 = body.newObject("Sketcher::SketchObject", "Sketch013")
sketch14.AttachmentSupport = (doc.getObject("XZ_Plane"), [""])
sketch14.MapMode = "FlatFace"
sketch14.AttachmentOffset = App.Placement(Vector(0, 0, 0.105 * 25.4), App.Rotation())
sketch14.addGeometry([
    Part.LineSegment(Vector(-12.363866, 12.363866, 0), Vector(-12.363866, -12.363866, 0)),
    Part.LineSegment(Vector(-12.363866, -12.363866, 0), Vector(12.363866, -12.363866, 0)),
    Part.LineSegment(Vector(12.363866, -12.363866, 0), Vector(12.363866, 12.363866, 0)),
    Part.LineSegment(Vector(12.363866, 12.363866, 0), Vector(-12.363866, 12.363866, 0)),
], False)
sketch14.addConstraint([
    Sketcher.Constraint("Coincident", 0, 2, 1, 1),
    Sketcher.Constraint("Coincident", 1, 2, 2, 1),
    Sketcher.Constraint("Coincident", 2, 2, 3, 1),
    Sketcher.Constraint("Coincident", 3, 2, 0, 1),
    Sketcher.Constraint("Vertical", 0),
    Sketcher.Constraint("Horizontal", 1),
    Sketcher.Constraint("Vertical", 2),
    Sketcher.Constraint("Horizontal", 3),
    Sketcher.Constraint("Symmetric", 0, 2, 2, 2, -1, 1),
    Sketcher.Constraint("Equal", 3, 0),
    Sketcher.Constraint("DistanceX", 1, 1, 1, 2, Q("24.727732 mm")),
])
pad8 = body.newObject("PartDesign::Pad", "Pad007")
pad8.Profile = sketch14
pad8.Length = 40

# Sketch on XZ plane
sketch15 = body.newObject("Sketcher::SketchObject", "Sketch014")
sketch15.AttachmentSupport = (doc.getObject("XZ_Plane"), [""])
sketch15.MapMode = "FlatFace"
sketch15.AttachmentOffset = App.Placement(Vector(0, 0, 0.105 * 25.4), App.Rotation())
sketch15.addGeometry([
    Part.LineSegment(Vector(-20, 20, 0), Vector(-20, -20, 0)),  # 0
    Part.LineSegment(Vector(-20, -20, 0), Vector(20, -20, 0)),  # 1
    Part.LineSegment(Vector(20, -20, 0), Vector(20, 20, 0)),  # 2
    Part.LineSegment(Vector(20, 20, 0), Vector(-20, 20, 0)),  # 3
    Part.LineSegment(Vector(12.363866, -12.363866, 0), Vector(-12.363866, -12.363866, 0)),  # 4
    Part.LineSegment(Vector(-12.363866, -12.363866, 0), Vector(-12.363866, 12.363866, 0)),  # 5
    Part.LineSegment(Vector(-12.363866, 12.363866, 0), Vector(12.363866, 12.363866, 0)),  # 6
    Part.LineSegment(Vector(12.363866, 12.363866, 0), Vector(12.363866, -12.363866, 0)),  # 7
], False)
sketch15.addConstraint([
    Sketcher.Constraint("Coincident", 0, 2, 1, 1),
    Sketcher.Constraint("Coincident", 1, 2, 2, 1),
    Sketcher.Constraint("Coincident", 2, 2, 3, 1),
    Sketcher.Constraint("Coincident", 3, 2, 0, 1),
    Sketcher.Constraint("Coincident", 4, 2, 5, 1),
    Sketcher.Constraint("Coincident", 5, 2, 6, 1),
    Sketcher.Constraint("Coincident", 6, 2, 7, 1),
    Sketcher.Constraint("Coincident", 7, 2, 4, 1),
    Sketcher.Constraint("Vertical", 0),
    Sketcher.Constraint("Horizontal", 1),
    Sketcher.Constraint("Vertical", 2),
    Sketcher.Constraint("Horizontal", 3),
    Sketcher.Constraint("Horizontal", 4),
    Sketcher.Constraint("Vertical", 5),
    Sketcher.Constraint("Horizontal", 6),
    Sketcher.Constraint("Vertical", 7),
    Sketcher.Constraint("Symmetric", 0, 2, 2, 2, -1, 1),
    Sketcher.Constraint("Symmetric", 4, 2, 6, 2, -1, 1),
    Sketcher.Constraint("Equal", 3, 0),
    Sketcher.Constraint("Equal", 6, 5),
    Sketcher.Constraint("DistanceX", 1, 1, 1, 2, Q("40 mm")),
    Sketcher.Constraint("DistanceX", 4, 2, 4, 1, Q("24.727732 mm")),
])
pad9 = body.newObject("PartDesign::Pad", "Pad008")
pad9.Profile = sketch15
pad9.Length = 3

# Sketch on XZ plane
sketch16 = body.newObject("Sketcher::SketchObject", "Sketch015")
sketch16.AttachmentSupport = (doc.getObject("XZ_Plane"), [""])
sketch16.MapMode = "FlatFace"
sketch16.AttachmentOffset = App.Placement(Vector(0, 0, 0.105 * 25.4), App.Rotation())
sketch16.addGeometry([
    Part.Circle(Vector(-16.181933, 0, 0), Vector(0, 0, 1), 2),
    Part.Circle(Vector(0, 16.181933, 0), Vector(0, 0, 1), 2),
    Part.Circle(Vector(16.181933, 0, 0), Vector(0, 0, 1), 2),
    Part.Circle(Vector(0, -16.181933, 0), Vector(0, 0, 1), 2),
], False)
sketch16.addConstraint([
    Sketcher.Constraint("Equal", 0, 1),
    Sketcher.Constraint("Equal", 1, 2),
    Sketcher.Constraint("Equal", 2, 3),
    Sketcher.Constraint("Symmetric", 0, 3, 2, 3, -1, 1),
    Sketcher.Constraint("Symmetric", 1, 3, 3, 3, -1, 1),
    Sketcher.Constraint("PointOnObject", 0, 3, -1),
    Sketcher.Constraint("PointOnObject", 1, 3, -2),
    Sketcher.Constraint("Diameter", 0, Q("4 mm")),
    Sketcher.Constraint("DistanceX", 0, 3, -1, 1, Q("16.181933 mm")),
    Sketcher.Constraint("DistanceY", -1, 1, 1, 3, Q("16.181933 mm")),
])
pocket2 = body.newObject("PartDesign::Pocket", "Pocket001")
pocket2.Profile = sketch16
pocket2.Type = "ThroughAll"
pocket2.Midplane = True

# Sketch on XZ plane
sketch17 = body.newObject("Sketcher::SketchObject", "Sketch016")
sketch17.AttachmentSupport = (doc.getObject("XZ_Plane"), [""])
sketch17.MapMode = "FlatFace"
sketch17.AttachmentOffset = App.Placement(Vector(0, 0, 42.667), App.Rotation())
sketch17.addGeometry(Part.Circle(Vector(0, 0, 0), Vector(0, 0, 1), 2), False)
sketch17.addConstraint([
    Sketcher.Constraint("Coincident", 0, 3, -1, 1),
    Sketcher.Constraint("Diameter", 0, Q("4 mm")),
])
pocket3 = body.newObject("PartDesign::Pocket", "Pocket002")
pocket3.Profile = sketch17
pocket3.Length = 10

# Sketch on XZ plane
sketch18 = body.newObject("Sketcher::SketchObject", "Sketch017")
sketch18.AttachmentSupport = (doc.getObject("XZ_Plane"), [""])
sketch18.MapMode = "FlatFace"
sketch18.AttachmentOffset = App.Placement(Vector(0, 0, 0.105 * 25.4), App.Rotation())
sketch18.addGeometry([
    Part.LineSegment(Vector(-108.923385, 68.721857, 0), Vector(-108.923385, -70.542303, 0)),  # 0
    Part.LineSegment(Vector(-108.923385, -70.542303, 0), Vector(117.72221, -70.542303, 0)),  # 1
    Part.LineSegment(Vector(117.72221, -70.542303, 0), Vector(117.72221, 68.721857, 0)),  # 2
    Part.LineSegment(Vector(117.72221, 68.721857, 0), Vector(-108.923385, 68.721857, 0)),  # 3
    Part.LineSegment(Vector(42.477086, -37.16745, 0), Vector(-55.827027, -37.16745, 0)),  # 4
    Part.LineSegment(Vector(-55.827027, -37.16745, 0), Vector(-55.827027, 33.223149, 0)),  # 5
    Part.LineSegment(Vector(-55.827027, 33.223149, 0), Vector(42.477086, 33.223149, 0)),  # 6
    Part.LineSegment(Vector(42.477086, 33.223149, 0), Vector(42.477086, -37.16745, 0)),  # 7
], False)
sketch18.addConstraint([
    Sketcher.Constraint("Coincident", 0, 2, 1, 1),
    Sketcher.Constraint("Coincident", 1, 2, 2, 1),
    Sketcher.Constraint("Coincident", 2, 2, 3, 1),
    Sketcher.Constraint("Coincident", 3, 2, 0, 1),
    Sketcher.Constraint("Coincident", 4, 2, 5, 1),
    Sketcher.Constraint("Coincident", 5, 2, 6, 1),
    Sketcher.Constraint("Coincident", 6, 2, 7, 1),
    Sketcher.Constraint("Coincident", 7, 2, 4, 1),
    Sketcher.Constraint("Vertical", 0),
    Sketcher.Constraint("Horizontal", 1),
    Sketcher.Constraint("Vertical", 2),
    Sketcher.Constraint("Horizontal", 3),
    Sketcher.Constraint("Horizontal", 4),
    Sketcher.Constraint("Vertical", 5),
    Sketcher.Constraint("Horizontal", 6),
    Sketcher.Constraint("Vertical", 7),
    Sketcher.Constraint("DistanceY", 5, 1, 5, 2, Q("70.3906 mm")),
    Sketcher.Constraint("DistanceY", 0, 2, 0, 1, Q("139.26416 mm")),
    Sketcher.Constraint("DistanceX", 1, 1, 1, 2, Q("226.645594 mm")),
    Sketcher.Constraint("DistanceX", 4, 2, 4, 1, Q("98.304113 mm")),
    Sketcher.Constraint("DistanceX", -1, 1, 1, 2, Q("117.72221 mm")),
    Sketcher.Constraint("DistanceY", 4, 2, -1, 1, Q("37.16745 mm")),
    Sketcher.Constraint("DistanceX", 3, 2, 6, 2, Q("151.400471 mm")),
    Sketcher.Constraint("DistanceY", 0, 2, -1, 1, Q("70.542303 mm")),
])
pocket4 = body.newObject("PartDesign::Pocket", "Pocket003")
pocket4.Profile = sketch18
pocket4.Type = "ThroughAll"

# Sketch on XY plane
sketch19 = body.newObject("Sketcher::SketchObject", "Sketch018")
sketch19.AttachmentSupport = (doc.getObject("XY_Plane"), [""])
sketch19.MapMode = "FlatFace"
sketch19.AttachmentOffset = App.Placement(Vector(0, 0, -37.16745), App.Rotation())
sketch19.addGeometry([
    Part.LineSegment(Vector(42.477086, 0, 0), Vector(42.477086, -2.667, 0)),
    Part.LineSegment(Vector(42.477086, -2.667, 0), Vector(-55.827027, -2.667, 0)),
    Part.LineSegment(Vector(-55.827027, -2.667, 0), Vector(-55.827027, 0, 0)),
    Part.LineSegment(Vector(-55.827027, 0, 0), Vector(42.477086, 0, 0)),
], False)
sketch19.addConstraint([
    Sketcher.Constraint("Coincident", 0, 2, 1, 1),
    Sketcher.Constraint("Coincident", 1, 2, 2, 1),
    Sketcher.Constraint("Coincident", 2, 2, 3, 1),
    Sketcher.Constraint("Coincident", 3, 2, 0, 1),
    Sketcher.Constraint("Vertical", 0),
    Sketcher.Constraint("Horizontal", 1),
    Sketcher.Constraint("Vertical", 2),
    Sketcher.Constraint("Horizontal", 3),
    Sketcher.Constraint("PointOnObject", 2, 2, -1),
    Sketcher.Constraint("DistanceY", 0, 2, 0, 1, Q("0.105 in")),
    Sketcher.Constraint("DistanceX", 1, 2, 1, 1, Q("98.304113 mm")),
    Sketcher.Constraint("DistanceX", -1, 1, 0, 2, Q("42.477086 mm")),
])
pocket5 = body.newObject("PartDesign::Pocket", "Pocket004")
pocket5.Profile = sketch19
pocket5.Type = "ThroughAll"
pocket5.Reversed = True

# Sketch on XZ plane
sketch20 = body.newObject("Sketcher::SketchObject", "Sketch019")
sketch20.AttachmentSupport = (doc.getObject("XZ_Plane"), [""])
sketch20.MapMode = "FlatFace"
sketch20.AttachmentOffset = App.Placement(Vector(0, 0, 42.667), App.Rotation())
sketch20.addGeometry([
    Part.Circle(Vector(7.181933, 0, 0), Vector(0, 0, 1), 2),
    Part.Circle(Vector(0, 7.181933, 0), Vector(0, 0, 1), 2),
], False)
sketch20.addConstraint([
    Sketcher.Constraint("Equal", 0, 1),
    Sketcher.Constraint("PointOnObject", 0, 3, -1),
    Sketcher.Constraint("PointOnObject", 1, 3, -2),
    Sketcher.Constraint("Diameter", 0, Q("4 mm")),
    Sketcher.Constraint("DistanceX", -1, 1, 0, 3, Q("7.181933 mm")),
    Sketcher.Constraint("DistanceY", -1, 1, 1, 3, Q("7.181933 mm")),
])
pocket6 = body.newObject("PartDesign::Pocket", "Pocket005")
pocket6.Profile = sketch20
pocket6.Type = "ThroughAll"

doc.recompute()
